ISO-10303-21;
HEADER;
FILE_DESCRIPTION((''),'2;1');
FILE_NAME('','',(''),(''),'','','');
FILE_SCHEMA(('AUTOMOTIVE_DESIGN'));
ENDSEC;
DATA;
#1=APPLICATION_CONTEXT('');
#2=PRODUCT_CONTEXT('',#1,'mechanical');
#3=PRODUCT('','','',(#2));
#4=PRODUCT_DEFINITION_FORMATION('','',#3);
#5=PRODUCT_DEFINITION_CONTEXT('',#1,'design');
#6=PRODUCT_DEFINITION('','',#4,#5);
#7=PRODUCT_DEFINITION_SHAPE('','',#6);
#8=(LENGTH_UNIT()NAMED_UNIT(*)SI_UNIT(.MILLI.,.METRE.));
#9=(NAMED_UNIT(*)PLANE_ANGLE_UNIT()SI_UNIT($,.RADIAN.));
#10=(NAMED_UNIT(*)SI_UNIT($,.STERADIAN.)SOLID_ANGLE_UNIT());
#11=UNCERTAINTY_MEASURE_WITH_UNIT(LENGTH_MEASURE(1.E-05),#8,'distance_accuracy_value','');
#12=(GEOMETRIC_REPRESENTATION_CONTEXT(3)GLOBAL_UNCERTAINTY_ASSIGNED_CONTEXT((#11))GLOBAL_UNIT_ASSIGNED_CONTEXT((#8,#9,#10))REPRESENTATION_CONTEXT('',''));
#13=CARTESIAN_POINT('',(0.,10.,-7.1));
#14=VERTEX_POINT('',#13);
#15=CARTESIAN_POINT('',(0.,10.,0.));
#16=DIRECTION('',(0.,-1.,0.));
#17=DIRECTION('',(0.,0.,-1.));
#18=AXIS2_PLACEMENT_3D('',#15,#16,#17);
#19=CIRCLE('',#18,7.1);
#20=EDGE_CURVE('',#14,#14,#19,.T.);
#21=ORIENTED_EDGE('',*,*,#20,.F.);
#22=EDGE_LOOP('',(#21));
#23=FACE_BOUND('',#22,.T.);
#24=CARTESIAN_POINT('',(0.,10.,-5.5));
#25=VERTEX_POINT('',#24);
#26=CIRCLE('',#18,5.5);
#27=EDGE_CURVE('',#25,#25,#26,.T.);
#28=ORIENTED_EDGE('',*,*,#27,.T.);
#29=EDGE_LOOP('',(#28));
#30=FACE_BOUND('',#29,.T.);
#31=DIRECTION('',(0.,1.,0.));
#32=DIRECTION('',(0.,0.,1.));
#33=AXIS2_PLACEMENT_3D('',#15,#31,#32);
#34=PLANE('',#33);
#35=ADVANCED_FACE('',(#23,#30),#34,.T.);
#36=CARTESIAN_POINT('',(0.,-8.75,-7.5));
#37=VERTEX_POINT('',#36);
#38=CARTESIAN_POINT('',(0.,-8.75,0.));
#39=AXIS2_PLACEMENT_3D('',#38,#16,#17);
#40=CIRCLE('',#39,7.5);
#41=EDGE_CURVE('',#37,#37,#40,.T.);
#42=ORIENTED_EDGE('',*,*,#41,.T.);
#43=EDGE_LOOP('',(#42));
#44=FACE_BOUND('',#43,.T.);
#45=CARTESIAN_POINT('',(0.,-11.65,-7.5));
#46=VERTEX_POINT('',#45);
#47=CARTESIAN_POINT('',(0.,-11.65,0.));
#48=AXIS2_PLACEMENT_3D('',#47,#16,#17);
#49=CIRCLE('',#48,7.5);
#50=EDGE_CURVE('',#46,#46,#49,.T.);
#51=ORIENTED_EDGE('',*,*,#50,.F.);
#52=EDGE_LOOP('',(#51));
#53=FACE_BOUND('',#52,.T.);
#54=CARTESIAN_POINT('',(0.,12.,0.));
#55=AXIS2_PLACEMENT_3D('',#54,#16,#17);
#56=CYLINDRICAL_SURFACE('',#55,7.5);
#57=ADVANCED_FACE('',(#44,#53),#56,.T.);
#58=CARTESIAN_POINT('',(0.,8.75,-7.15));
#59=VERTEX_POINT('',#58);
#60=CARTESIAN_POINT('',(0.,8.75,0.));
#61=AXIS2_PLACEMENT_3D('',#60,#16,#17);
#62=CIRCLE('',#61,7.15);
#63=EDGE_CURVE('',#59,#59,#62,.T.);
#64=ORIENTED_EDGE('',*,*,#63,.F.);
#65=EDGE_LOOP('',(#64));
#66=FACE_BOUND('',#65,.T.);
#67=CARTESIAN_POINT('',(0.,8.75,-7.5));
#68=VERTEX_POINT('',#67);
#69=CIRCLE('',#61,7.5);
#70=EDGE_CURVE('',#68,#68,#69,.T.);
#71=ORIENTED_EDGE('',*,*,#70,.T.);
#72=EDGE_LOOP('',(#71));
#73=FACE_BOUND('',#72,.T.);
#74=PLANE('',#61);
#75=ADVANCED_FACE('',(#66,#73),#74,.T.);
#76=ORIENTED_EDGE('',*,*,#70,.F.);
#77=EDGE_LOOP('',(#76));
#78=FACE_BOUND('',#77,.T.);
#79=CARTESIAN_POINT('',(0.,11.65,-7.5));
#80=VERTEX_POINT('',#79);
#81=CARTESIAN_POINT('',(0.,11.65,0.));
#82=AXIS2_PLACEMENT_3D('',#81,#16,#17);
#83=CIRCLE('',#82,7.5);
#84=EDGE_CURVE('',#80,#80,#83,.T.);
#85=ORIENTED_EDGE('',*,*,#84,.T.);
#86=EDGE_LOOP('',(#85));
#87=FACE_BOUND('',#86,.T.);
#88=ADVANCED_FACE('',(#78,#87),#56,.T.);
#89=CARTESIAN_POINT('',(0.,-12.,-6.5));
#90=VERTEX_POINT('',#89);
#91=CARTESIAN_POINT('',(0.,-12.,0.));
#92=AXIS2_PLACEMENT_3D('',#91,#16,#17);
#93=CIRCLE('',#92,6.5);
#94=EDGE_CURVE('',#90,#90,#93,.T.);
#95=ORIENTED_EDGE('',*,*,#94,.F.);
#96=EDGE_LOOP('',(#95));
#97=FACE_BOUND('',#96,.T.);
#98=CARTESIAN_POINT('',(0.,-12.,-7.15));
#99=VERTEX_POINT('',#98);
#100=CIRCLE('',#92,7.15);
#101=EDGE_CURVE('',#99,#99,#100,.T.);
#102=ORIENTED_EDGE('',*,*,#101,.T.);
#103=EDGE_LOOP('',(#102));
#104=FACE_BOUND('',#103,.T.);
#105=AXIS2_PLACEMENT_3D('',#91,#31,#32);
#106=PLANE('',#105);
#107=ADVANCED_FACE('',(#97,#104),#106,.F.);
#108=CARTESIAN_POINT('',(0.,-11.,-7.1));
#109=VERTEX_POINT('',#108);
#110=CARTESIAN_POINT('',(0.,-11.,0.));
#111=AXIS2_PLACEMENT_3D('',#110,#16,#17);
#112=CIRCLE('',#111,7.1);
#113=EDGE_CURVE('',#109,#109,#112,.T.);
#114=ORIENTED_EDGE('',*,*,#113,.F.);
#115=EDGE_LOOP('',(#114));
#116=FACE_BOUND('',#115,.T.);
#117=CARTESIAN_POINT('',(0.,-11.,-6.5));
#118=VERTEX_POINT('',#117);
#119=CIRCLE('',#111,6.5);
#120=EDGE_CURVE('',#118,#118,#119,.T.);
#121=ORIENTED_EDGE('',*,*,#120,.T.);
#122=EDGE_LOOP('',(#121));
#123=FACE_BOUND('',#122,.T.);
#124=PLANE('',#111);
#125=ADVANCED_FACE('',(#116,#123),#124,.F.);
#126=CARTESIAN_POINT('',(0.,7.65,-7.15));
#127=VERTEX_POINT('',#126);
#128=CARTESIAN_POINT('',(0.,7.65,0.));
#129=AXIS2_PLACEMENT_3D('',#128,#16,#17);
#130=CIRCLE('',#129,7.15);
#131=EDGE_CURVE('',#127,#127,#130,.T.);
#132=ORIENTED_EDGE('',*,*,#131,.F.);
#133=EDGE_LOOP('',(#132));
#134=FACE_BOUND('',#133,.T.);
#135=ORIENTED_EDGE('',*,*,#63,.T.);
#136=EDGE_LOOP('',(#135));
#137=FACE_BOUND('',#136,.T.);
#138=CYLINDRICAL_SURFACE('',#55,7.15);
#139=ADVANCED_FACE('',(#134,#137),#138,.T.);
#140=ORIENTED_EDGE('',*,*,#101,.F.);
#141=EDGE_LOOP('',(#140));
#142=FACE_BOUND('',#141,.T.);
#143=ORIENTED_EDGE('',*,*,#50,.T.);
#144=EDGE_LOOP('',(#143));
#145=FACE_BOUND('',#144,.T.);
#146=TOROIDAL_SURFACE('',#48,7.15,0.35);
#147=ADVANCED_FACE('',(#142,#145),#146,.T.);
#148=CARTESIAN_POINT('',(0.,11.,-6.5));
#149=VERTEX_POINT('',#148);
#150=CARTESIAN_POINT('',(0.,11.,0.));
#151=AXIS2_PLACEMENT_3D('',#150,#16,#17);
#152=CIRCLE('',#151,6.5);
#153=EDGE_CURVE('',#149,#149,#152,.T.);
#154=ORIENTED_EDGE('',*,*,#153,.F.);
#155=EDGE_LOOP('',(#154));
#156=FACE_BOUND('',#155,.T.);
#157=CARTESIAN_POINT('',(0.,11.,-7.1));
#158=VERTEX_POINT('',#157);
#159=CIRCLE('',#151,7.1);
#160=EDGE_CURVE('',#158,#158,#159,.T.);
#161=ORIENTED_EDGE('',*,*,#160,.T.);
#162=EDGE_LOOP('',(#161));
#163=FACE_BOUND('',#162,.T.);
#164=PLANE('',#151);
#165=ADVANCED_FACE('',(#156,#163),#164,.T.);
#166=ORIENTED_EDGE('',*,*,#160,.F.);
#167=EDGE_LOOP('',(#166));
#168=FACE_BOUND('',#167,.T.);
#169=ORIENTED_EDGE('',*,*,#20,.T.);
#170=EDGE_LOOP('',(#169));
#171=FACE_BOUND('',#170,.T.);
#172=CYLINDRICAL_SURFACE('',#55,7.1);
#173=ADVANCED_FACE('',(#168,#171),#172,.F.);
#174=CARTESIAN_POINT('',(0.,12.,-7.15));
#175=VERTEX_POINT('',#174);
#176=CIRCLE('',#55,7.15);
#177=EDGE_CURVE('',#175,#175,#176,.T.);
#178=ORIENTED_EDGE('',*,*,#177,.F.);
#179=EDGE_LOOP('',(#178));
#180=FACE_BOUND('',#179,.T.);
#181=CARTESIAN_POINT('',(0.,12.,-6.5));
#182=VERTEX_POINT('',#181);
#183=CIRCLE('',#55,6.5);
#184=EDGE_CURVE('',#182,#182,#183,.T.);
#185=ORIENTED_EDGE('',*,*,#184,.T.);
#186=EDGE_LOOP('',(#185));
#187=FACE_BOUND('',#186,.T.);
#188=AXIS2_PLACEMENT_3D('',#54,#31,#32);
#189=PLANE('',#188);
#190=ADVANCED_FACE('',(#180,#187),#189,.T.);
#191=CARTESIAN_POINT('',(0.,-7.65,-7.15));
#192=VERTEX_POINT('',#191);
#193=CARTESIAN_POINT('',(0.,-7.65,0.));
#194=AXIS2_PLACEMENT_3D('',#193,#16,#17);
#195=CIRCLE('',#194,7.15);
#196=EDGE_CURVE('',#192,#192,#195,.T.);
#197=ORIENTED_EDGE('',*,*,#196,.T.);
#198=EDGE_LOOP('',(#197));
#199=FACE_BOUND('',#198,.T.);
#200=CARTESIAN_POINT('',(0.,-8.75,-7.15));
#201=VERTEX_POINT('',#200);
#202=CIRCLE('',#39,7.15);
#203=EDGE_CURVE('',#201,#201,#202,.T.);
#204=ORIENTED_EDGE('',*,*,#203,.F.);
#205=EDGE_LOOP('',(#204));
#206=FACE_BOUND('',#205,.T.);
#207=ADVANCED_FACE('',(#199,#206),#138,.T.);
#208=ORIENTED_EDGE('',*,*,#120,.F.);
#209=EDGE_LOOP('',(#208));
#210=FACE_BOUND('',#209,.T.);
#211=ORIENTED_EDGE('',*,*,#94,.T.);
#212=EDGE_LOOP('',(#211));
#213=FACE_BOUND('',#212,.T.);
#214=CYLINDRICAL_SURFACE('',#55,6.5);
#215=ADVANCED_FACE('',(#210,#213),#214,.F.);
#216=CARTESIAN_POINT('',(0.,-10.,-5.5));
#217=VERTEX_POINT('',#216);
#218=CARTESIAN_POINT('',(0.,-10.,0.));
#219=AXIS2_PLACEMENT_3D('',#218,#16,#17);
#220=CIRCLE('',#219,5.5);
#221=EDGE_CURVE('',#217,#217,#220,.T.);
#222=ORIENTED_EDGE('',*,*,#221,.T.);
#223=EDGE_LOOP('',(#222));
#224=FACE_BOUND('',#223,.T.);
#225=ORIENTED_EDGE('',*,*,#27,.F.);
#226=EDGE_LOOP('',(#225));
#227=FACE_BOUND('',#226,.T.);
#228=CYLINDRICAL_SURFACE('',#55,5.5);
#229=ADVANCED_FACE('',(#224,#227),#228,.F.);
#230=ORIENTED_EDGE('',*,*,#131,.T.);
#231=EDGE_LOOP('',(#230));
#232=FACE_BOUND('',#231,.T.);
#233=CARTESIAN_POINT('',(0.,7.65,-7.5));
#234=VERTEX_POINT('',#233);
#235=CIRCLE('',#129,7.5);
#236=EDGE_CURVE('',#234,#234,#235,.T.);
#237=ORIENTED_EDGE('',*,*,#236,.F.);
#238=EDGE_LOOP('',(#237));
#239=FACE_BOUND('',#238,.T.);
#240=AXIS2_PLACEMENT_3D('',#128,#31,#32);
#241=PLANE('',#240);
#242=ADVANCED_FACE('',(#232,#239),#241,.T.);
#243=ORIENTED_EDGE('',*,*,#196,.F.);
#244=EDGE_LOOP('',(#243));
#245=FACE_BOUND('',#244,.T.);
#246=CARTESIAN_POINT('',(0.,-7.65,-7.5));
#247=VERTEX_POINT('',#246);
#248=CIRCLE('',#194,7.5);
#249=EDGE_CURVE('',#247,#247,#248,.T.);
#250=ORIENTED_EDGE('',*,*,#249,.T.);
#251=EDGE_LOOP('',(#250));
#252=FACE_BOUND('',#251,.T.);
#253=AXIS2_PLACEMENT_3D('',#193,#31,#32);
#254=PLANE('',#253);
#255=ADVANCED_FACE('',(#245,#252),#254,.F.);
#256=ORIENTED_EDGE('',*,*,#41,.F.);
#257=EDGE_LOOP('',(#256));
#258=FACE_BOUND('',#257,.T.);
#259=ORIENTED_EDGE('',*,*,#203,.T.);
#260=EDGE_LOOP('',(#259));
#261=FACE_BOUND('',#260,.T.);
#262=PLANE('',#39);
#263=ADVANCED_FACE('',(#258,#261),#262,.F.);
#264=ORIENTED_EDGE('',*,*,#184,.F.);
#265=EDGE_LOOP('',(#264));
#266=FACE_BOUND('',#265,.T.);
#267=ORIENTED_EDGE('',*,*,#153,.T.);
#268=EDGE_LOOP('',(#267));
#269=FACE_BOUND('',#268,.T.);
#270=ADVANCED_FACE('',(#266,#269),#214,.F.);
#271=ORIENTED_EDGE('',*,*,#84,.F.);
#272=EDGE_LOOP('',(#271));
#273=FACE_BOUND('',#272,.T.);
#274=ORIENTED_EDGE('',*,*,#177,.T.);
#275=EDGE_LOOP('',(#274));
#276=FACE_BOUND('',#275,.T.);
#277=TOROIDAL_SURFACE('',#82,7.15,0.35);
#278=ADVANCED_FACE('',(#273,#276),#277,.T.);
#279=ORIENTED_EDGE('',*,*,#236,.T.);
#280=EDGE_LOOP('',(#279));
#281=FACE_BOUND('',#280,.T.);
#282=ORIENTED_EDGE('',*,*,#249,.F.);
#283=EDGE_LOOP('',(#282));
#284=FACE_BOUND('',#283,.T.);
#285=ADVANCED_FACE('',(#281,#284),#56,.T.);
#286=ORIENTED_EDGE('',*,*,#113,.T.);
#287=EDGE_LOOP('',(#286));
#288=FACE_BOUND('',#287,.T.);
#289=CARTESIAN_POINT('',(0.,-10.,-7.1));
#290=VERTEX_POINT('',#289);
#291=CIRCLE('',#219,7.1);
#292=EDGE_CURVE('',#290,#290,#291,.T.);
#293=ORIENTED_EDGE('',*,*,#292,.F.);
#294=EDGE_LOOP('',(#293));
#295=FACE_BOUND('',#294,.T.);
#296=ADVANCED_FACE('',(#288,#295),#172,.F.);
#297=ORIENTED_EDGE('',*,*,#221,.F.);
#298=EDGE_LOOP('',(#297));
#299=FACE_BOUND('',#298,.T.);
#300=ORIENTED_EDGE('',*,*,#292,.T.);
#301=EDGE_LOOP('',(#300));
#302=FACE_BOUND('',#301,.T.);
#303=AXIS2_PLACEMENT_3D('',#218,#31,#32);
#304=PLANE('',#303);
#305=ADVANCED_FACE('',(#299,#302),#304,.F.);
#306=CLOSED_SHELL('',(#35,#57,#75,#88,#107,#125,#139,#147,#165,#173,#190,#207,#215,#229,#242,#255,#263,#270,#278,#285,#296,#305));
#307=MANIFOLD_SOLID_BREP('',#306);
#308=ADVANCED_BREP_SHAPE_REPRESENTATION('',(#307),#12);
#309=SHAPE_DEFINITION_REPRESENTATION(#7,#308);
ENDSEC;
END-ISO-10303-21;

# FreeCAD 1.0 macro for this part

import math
import FreeCAD as App
import Part
import Sketcher
from FreeCAD import Vector

doc = App.newDocument("Part")
body = doc.addObject("PartDesign::Body", "Body")

sketch1 = body.newObject("Sketcher::SketchObject", "Sketch")
sketch1.AttachmentSupport = (doc.getObject("YZ_Plane"), [""])
sketch1.MapMode = "FlatFace"
sketch1.addGeometry(Part.LineSegment(Vector(8.75, -7.5, 0), Vector(11.65, -7.5, 0)), False)
sketch1.addGeometry(Part.ArcOfCircle(Part.Circle(Vector(11.65, -7.15, 0), Vector(0, 0, 1), 0.35), math.radians(-90), math.radians(0)), False)
sketch1.addGeometry(Part.LineSegment(Vector(12, -7.15, 0), Vector(12, -6.5, 0)), False)
sketch1.addGeometry(Part.LineSegment(Vector(12, -6.5, 0), Vector(11, -6.5, 0)), False)
sketch1.addGeometry(Part.LineSegment(Vector(11, -6.5, 0), Vector(11, -7.1, 0)), False)
sketch1.addGeometry(Part.LineSegment(Vector(11, -7.1, 0), Vector(10, -7.1, 0)), False)
sketch1.addGeometry(Part.LineSegment(Vector(10, -7.1, 0), Vector(10, -5.5, 0)), False)
sketch1.addGeometry(Part.LineSegment(Vector(10, -5.5, 0), Vector(-10, -5.5, 0)), False)
sketch1.addGeometry(Part.LineSegment(Vector(-10, -5.5, 0), Vector(-10, -7.1, 0)), False)
sketch1.addGeometry(Part.LineSegment(Vector(-10, -7.1, 0), Vector(-11, -7.1, 0)), False)
sketch1.addGeometry(Part.LineSegment(Vector(-11, -7.1, 0), Vector(-11, -6.5, 0)), False)
sketch1.addGeometry(Part.LineSegment(Vector(-11, -6.5, 0), Vector(-12, -6.5, 0)), False)
sketch1.addGeometry(Part.LineSegment(Vector(-12, -6.5, 0), Vector(-12, -7.15, 0)), False)
sketch1.addGeometry(Part.ArcOfCircle(Part.Circle(Vector(-11.65, -7.15, 0), Vector(0, 0, 1), 0.35), math.radians(-180), math.radians(-90)), False)
sketch1.addGeometry(Part.LineSegment(Vector(-11.65, -7.5, 0), Vector(-8.75, -7.5, 0)), False)
sketch1.addGeometry(Part.LineSegment(Vector(-8.75, -7.5, 0), Vector(-8.75, -7.15, 0)), False)
sketch1.addGeometry(Part.LineSegment(Vector(-8.75, -7.15, 0), Vector(-7.65, -7.15, 0)), False)
sketch1.addGeometry(Part.LineSegment(Vector(-7.65, -7.15, 0), Vector(-7.65, -7.5, 0)), False)
sketch1.addGeometry(Part.LineSegment(Vector(-7.65, -7.5, 0), Vector(7.65, -7.5, 0)), False)
sketch1.addGeometry(Part.LineSegment(Vector(7.65, -7.5, 0), Vector(7.65, -7.15, 0)), False)
sketch1.addGeometry(Part.LineSegment(Vector(7.65, -7.15, 0), Vector(8.75, -7.15, 0)), False)
sketch1.addGeometry(Part.LineSegment(Vector(8.75, -7.15, 0), Vector(8.75, -7.5, 0)), False)
sketch1.addConstraint(Sketcher.Constraint("Tangent", 0, 2, 1, 1))
sketch1.addConstraint(Sketcher.Constraint("Tangent", 1, 2, 2, 1))
sketch1.addConstraint(Sketcher.Constraint("Coincident", 2, 2, 3, 1))
sketch1.addConstraint(Sketcher.Constraint("Coincident", 3, 2, 4, 1))
sketch1.addConstraint(Sketcher.Constraint("Coincident", 4, 2, 5, 1))
sketch1.addConstraint(Sketcher.Constraint("Coincident", 5, 2, 6, 1))
sketch1.addConstraint(Sketcher.Constraint("Coincident", 6, 2, 7, 1))
sketch1.addConstraint(Sketcher.Constraint("Coincident", 7, 2, 8, 1))
sketch1.addConstraint(Sketcher.Constraint("Coincident", 8, 2, 9, 1))
sketch1.addConstraint(Sketcher.Constraint("Coincident", 9, 2, 10, 1))
sketch1.addConstraint(Sketcher.Constraint("Coincident", 10, 2, 11, 1))
sketch1.addConstraint(Sketcher.Constraint("Coincident", 11, 2, 12, 1))
sketch1.addConstraint(Sketcher.Constraint("Tangent", 12, 2, 13, 1))
sketch1.addConstraint(Sketcher.Constraint("Tangent", 13, 2, 14, 1))
sketch1.addConstraint(Sketcher.Constraint("Coincident", 14, 2, 15, 1))
sketch1.addConstraint(Sketcher.Constraint("Coincident", 15, 2, 16, 1))
sketch1.addConstraint(Sketcher.Constraint("Coincident", 16, 2, 17, 1))
sketch1.addConstraint(Sketcher.Constraint("Coincident", 17, 2, 18, 1))
sketch1.addConstraint(Sketcher.Constraint("Coincident", 18, 2, 19, 1))
sketch1.addConstraint(Sketcher.Constraint("Coincident", 19, 2, 20, 1))
sketch1.addConstraint(Sketcher.Constraint("Coincident", 20, 2, 21, 1))
sketch1.addConstraint(Sketcher.Constraint("Coincident", 21, 2, 0, 1))
sketch1.addConstraint(Sketcher.Constraint("Horizontal", 0))
sketch1.addConstraint(Sketcher.Constraint("Vertical", 2))
sketch1.addConstraint(Sketcher.Constraint("Horizontal", 3))
sketch1.addConstraint(Sketcher.Constraint("Vertical", 4))
sketch1.addConstraint(Sketcher.Constraint("Horizontal", 5))
sketch1.addConstraint(Sketcher.Constraint("Vertical", 6))
sketch1.addConstraint(Sketcher.Constraint("Horizontal", 7))
sketch1.addConstraint(Sketcher.Constraint("Vertical", 8))
sketch1.addConstraint(Sketcher.Constraint("Horizontal", 9))
sketch1.addConstraint(Sketcher.Constraint("Vertical", 10))
sketch1.addConstraint(Sketcher.Constraint("Horizontal", 11))
sketch1.addConstraint(Sketcher.Constraint("Vertical", 12))
sketch1.addConstraint(Sketcher.Constraint("Horizontal", 14))
sketch1.addConstraint(Sketcher.Constraint("Vertical", 15))
sketch1.addConstraint(Sketcher.Constraint("Horizontal", 16))
sketch1.addConstraint(Sketcher.Constraint("Vertical", 17))
sketch1.addConstraint(Sketcher.Constraint("Horizontal", 18))
sketch1.addConstraint(Sketcher.Constraint("Vertical", 19))
sketch1.addConstraint(Sketcher.Constraint("Horizontal", 20))
sketch1.addConstraint(Sketcher.Constraint("Vertical", 21))
sketch1.addConstraint(Sketcher.Constraint("Equal", 1, 13))
sketch1.addConstraint(Sketcher.Constraint("Symmetric", 1, 3, 13, 3, -2))
sketch1.addConstraint(Sketcher.Constraint("Symmetric", 5, 2, 8, 2, -2))
sketch1.addConstraint(Sketcher.Constraint("Symmetric", 3, 2, 10, 2, -2))
sketch1.addConstraint(Sketcher.Constraint("Symmetric", 16, 2, 19, 2, -2))
sketch1.addConstraint(Sketcher.Constraint("Horizontal", 12, 2, 15, 2))
sketch1.addConstraint(Sketcher.Constraint("Horizontal", 14, 2, 17, 2))
sketch1.addConstraint(Sketcher.Constraint("Equal", 3, 5))
sketch1.addConstraint(Sketcher.Constraint("Equal", 0, 14))
sketch1.addConstraint(Sketcher.Constraint("DistanceX", 3, 2, 3, 1, 1.0))
sketch1.addConstraint(Sketcher.Constraint("DistanceX", 7, 2, 7, 1, 20.0))
sketch1.addConstraint(Sketcher.Constraint("Radius", 1, 0.35))
sketch1.addConstraint(Sketcher.Constraint("DistanceX", 0, 1, 0, 2, 2.9))
sketch1.addConstraint(Sketcher.Constraint("DistanceX", 16, 1, 16, 2, 1.1))
sketch1.addConstraint(Sketcher.Constraint("DistanceY", 4, 2, 4, 1, 0.6))
sketch1.addConstraint(Sketcher.Constraint("DistanceY", 6, 1, 6, 2, 1.6))
sketch1.addConstraint(Sketcher.Constraint("DistanceY", 0, 2, 2, 2, 1.0))
sketch1.addConstraint(Sketcher.Constraint("DistanceY", 0, 2, -1, 1, 7.5))
revolution = body.newObject("PartDesign::Revolution", "Revolution")
revolution.Profile = sketch1
revolution.ReferenceAxis = (sketch1, ["H_Axis"])
revolution.Angle = 360

doc.recompute()
